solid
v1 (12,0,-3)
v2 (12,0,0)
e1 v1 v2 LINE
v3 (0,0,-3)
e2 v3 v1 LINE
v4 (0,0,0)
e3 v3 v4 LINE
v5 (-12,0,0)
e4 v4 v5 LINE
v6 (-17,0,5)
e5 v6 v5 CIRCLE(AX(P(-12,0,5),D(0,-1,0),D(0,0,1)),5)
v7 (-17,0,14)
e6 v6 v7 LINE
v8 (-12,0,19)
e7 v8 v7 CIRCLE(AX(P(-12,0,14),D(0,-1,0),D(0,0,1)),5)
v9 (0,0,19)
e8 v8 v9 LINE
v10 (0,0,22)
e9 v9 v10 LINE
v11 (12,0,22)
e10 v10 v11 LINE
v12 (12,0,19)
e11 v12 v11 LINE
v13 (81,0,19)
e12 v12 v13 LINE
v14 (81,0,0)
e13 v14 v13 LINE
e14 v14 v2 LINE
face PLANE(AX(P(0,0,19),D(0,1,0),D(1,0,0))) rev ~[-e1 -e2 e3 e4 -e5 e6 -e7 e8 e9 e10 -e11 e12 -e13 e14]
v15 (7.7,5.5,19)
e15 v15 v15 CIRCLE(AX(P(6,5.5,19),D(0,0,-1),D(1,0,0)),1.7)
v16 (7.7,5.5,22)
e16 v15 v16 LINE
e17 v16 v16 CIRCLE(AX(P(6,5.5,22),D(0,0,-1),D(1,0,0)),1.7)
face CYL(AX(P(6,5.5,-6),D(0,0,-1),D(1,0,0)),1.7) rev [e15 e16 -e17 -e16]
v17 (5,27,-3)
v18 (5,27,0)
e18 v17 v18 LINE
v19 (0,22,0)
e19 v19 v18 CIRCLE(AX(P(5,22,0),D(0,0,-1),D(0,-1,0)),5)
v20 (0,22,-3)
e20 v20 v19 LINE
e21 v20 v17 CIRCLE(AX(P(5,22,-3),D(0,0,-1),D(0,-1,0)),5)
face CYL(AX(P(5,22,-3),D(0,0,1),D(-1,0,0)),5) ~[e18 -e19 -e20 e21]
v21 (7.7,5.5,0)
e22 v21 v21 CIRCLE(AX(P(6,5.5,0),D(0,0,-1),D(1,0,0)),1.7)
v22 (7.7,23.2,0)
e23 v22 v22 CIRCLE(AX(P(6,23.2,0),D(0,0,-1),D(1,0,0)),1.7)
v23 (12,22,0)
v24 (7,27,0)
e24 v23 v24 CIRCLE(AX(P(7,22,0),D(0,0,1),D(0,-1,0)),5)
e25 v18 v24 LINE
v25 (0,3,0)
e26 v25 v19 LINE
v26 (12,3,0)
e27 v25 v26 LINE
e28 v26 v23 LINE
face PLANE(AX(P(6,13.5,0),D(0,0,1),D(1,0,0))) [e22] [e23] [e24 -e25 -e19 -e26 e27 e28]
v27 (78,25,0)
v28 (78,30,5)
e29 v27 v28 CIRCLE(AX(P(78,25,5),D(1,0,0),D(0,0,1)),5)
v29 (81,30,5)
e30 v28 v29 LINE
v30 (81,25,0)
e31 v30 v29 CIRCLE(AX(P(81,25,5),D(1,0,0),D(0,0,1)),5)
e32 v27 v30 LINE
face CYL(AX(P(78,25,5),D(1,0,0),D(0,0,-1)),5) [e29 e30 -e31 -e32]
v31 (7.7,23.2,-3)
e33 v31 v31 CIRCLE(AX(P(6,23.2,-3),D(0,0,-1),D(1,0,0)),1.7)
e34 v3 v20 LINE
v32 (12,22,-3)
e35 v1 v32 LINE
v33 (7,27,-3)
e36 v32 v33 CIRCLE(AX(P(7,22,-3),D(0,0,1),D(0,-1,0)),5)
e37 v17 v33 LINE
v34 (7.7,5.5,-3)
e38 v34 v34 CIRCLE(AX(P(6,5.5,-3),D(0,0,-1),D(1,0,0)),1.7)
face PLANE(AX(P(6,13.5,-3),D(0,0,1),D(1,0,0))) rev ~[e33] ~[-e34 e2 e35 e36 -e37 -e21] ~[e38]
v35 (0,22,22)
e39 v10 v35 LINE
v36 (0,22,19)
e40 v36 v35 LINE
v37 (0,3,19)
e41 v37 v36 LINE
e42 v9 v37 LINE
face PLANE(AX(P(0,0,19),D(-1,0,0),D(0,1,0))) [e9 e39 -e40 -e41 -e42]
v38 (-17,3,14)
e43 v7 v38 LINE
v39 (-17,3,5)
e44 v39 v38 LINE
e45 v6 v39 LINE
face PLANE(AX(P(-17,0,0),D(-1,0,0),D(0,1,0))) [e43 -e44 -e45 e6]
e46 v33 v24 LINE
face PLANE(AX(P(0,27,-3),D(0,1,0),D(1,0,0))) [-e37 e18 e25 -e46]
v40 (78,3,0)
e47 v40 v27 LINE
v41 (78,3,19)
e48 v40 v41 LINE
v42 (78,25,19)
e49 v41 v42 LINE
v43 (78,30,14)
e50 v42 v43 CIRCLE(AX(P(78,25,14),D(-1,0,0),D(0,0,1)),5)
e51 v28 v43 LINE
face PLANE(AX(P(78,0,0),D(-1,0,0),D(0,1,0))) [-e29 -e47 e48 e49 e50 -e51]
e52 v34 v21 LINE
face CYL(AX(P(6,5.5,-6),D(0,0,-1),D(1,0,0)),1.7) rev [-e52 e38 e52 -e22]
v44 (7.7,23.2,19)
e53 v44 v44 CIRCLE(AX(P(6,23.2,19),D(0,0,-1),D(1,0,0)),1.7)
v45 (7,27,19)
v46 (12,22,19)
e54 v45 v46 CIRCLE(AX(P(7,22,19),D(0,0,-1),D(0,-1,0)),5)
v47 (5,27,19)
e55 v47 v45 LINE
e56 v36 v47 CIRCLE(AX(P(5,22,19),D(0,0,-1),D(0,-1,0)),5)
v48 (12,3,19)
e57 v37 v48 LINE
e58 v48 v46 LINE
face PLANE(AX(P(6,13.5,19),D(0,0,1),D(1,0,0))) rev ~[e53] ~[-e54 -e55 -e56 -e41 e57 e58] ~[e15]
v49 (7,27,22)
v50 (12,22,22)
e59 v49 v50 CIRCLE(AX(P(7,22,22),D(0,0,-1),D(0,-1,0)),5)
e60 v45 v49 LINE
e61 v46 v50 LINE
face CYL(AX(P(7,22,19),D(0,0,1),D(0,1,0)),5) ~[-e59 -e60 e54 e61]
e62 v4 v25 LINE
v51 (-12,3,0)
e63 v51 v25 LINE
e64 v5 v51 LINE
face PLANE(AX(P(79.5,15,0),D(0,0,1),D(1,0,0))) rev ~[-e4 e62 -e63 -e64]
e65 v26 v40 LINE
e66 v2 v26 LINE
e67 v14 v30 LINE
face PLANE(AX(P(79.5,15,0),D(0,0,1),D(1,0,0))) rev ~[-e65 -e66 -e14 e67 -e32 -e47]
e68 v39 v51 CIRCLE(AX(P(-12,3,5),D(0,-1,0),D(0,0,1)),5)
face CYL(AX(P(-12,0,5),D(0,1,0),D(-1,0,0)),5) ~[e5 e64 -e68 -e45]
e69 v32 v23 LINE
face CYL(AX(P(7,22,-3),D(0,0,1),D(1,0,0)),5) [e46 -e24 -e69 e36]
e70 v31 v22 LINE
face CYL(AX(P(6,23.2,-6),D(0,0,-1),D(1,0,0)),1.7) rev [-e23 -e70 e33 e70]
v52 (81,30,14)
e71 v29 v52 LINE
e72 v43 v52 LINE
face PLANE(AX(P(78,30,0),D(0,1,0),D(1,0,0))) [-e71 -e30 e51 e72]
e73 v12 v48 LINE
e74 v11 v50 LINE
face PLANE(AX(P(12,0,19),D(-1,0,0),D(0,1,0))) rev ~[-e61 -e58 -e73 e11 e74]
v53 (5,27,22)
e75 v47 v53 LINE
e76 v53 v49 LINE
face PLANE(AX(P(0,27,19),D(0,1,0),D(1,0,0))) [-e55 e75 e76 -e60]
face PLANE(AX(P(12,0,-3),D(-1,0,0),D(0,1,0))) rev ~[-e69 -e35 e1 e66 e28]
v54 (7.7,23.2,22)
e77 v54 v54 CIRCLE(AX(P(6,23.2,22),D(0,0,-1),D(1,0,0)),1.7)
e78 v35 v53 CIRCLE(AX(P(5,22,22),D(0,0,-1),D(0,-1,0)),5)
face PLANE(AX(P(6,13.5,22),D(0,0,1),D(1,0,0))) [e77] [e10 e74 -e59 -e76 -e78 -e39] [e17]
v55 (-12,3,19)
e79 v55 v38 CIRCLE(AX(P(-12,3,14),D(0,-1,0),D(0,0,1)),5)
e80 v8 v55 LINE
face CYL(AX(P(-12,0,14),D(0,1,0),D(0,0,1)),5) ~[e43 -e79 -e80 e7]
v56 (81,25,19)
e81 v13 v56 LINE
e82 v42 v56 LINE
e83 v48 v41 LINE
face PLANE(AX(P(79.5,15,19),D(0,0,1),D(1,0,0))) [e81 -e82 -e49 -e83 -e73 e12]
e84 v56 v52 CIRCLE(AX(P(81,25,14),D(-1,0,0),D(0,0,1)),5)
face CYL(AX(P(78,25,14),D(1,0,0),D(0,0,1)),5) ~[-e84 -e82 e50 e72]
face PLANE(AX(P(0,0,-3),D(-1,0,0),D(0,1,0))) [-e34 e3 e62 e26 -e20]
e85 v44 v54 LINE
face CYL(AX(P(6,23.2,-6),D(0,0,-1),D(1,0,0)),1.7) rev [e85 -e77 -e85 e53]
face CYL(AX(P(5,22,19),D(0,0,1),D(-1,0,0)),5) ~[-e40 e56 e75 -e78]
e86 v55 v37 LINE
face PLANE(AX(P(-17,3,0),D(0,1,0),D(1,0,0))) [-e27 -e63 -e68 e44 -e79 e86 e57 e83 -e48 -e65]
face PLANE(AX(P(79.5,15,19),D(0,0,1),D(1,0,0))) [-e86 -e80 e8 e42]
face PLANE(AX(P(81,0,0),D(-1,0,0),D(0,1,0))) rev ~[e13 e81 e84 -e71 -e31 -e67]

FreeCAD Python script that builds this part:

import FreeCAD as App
import Part
import Sketcher
from FreeCAD import Vector


def edges_at(feature, points):
    """Names of the edges that pass closest to the given points."""
    edges = feature.Shape.Edges
    near = lambda p: min(range(len(edges)), key=lambda i: edges[i].distToShape(Part.Vertex(*p))[0])
    return sorted({f"Edge{near(p) + 1}" for p in points})

doc = App.newDocument("Part")
body = doc.addObject("PartDesign::Body", "Body")

# Sketch on XY plane
sketch1 = body.newObject("Sketcher::SketchObject", "Sketch")
sketch1.AttachmentSupport = (doc.getObject("XY_Plane"), [""])
sketch1.MapMode = "FlatFace"
sketch1.AttachmentOffset = App.Placement(Vector(0, 0, -6), App.Rotation())
sketch1.addGeometry(Part.Circle(Vector(6, 23.2, 0), Vector(0, 0, 1), 1.7), False)
sketch1.addConstraint(Sketcher.Constraint("Diameter", 0, 3.4))
sketch1.addConstraint(Sketcher.Constraint("DistanceX", -1, 1, 0, 3, 6.0))
sketch1.addConstraint(Sketcher.Constraint("DistanceY", -1, 1, 0, 3, 23.2))
pad1 = body.newObject("PartDesign::Pad", "Pad")
pad1.Profile = sketch1
pad1.Length = 31
body2 = doc.addObject("PartDesign::Body", "Body001")
body2.AllowCompound = True

# Sketch on XY plane
sketch2 = body2.newObject("Sketcher::SketchObject", "Sketch001")
sketch2.AttachmentSupport = (doc.getObject("XY_Plane001"), [""])
sketch2.MapMode = "FlatFace"
sketch2.AttachmentOffset = App.Placement(Vector(0, 0, -6), App.Rotation())
sketch2.addGeometry(Part.Circle(Vector(6, 5.5, 0), Vector(0, 0, 1), 1.7), False)
sketch2.addConstraint(Sketcher.Constraint("Diameter", 0, 3.4))
sketch2.addConstraint(Sketcher.Constraint("DistanceX", -1, 1, 0, 3, 6.0))
sketch2.addConstraint(Sketcher.Constraint("DistanceY", -1, 1, 0, 3, 5.5))
pad2 = body2.newObject("PartDesign::Pad", "Pad001")
pad2.Profile = sketch2
pad2.Length = 31
doc.recompute()

boolean = body2.newObject("PartDesign::Boolean", "Boolean")
boolean.Type = "Fuse"
boolean.addObjects([body])
body3 = doc.addObject("PartDesign::Body", "Body002")

# Sketch on XY plane
sketch3 = body3.newObject("Sketcher::SketchObject", "Sketch002")
sketch3.AttachmentSupport = (doc.getObject("XY_Plane002"), [""])
sketch3.MapMode = "FlatFace"
sketch3.addGeometry(Part.LineSegment(Vector(78, 30, 0), Vector(78, 0, 0)), False)
sketch3.addGeometry(Part.LineSegment(Vector(78, 0, 0), Vector(81, 0, 0)), False)
sketch3.addGeometry(Part.LineSegment(Vector(81, 0, 0), Vector(81, 30, 0)), False)
sketch3.addGeometry(Part.LineSegment(Vector(81, 30, 0), Vector(78, 30, 0)), False)
sketch3.addConstraint(Sketcher.Constraint("Coincident", 0, 2, 1, 1))
sketch3.addConstraint(Sketcher.Constraint("Coincident", 1, 2, 2, 1))
sketch3.addConstraint(Sketcher.Constraint("Coincident", 2, 2, 3, 1))
sketch3.addConstraint(Sketcher.Constraint("Coincident", 3, 2, 0, 1))
sketch3.addConstraint(Sketcher.Constraint("Vertical", 0))
sketch3.addConstraint(Sketcher.Constraint("Horizontal", 1))
sketch3.addConstraint(Sketcher.Constraint("Vertical", 2))
sketch3.addConstraint(Sketcher.Constraint("Horizontal", 3))
sketch3.addConstraint(Sketcher.Constraint("PointOnObject", 0, 2, -1))
sketch3.addConstraint(Sketcher.Constraint("DistanceX", 1, 1, 1, 2, 3.0))
sketch3.addConstraint(Sketcher.Constraint("DistanceY", 0, 2, 0, 1, 30.0))
sketch3.addConstraint(Sketcher.Constraint("DistanceX", -1, 1, 0, 2, 78.0))
pad3 = body3.newObject("PartDesign::Pad", "Pad002")
pad3.Profile = sketch3
pad3.Length = 19
body4 = doc.addObject("PartDesign::Body", "Body003")

# Sketch on XY plane
sketch4 = body4.newObject("Sketcher::SketchObject", "Sketch003")
sketch4.AttachmentSupport = (doc.getObject("XY_Plane003"), [""])
sketch4.MapMode = "FlatFace"
sketch4.AttachmentOffset = App.Placement(Vector(0, 0, -3), App.Rotation())
sketch4.addGeometry(Part.LineSegment(Vector(0, 27, 0), Vector(0, 0, 0)), False)
sketch4.addGeometry(Part.LineSegment(Vector(0, 0, 0), Vector(12, 0, 0)), False)
sketch4.addGeometry(Part.LineSegment(Vector(12, 0, 0), Vector(12, 27, 0)), False)
sketch4.addGeometry(Part.LineSegment(Vector(12, 27, 0), Vector(0, 27, 0)), False)
sketch4.addConstraint(Sketcher.Constraint("Coincident", 0, 2, 1, 1))
sketch4.addConstraint(Sketcher.Constraint("Coincident", 1, 2, 2, 1))
sketch4.addConstraint(Sketcher.Constraint("Coincident", 2, 2, 3, 1))
sketch4.addConstraint(Sketcher.Constraint("Coincident", 3, 2, 0, 1))
sketch4.addConstraint(Sketcher.Constraint("Vertical", 0))
sketch4.addConstraint(Sketcher.Constraint("Horizontal", 1))
sketch4.addConstraint(Sketcher.Constraint("Vertical", 2))
sketch4.addConstraint(Sketcher.Constraint("Horizontal", 3))
sketch4.addConstraint(Sketcher.Constraint("Coincident", 0, 2, -1, 1))
sketch4.addConstraint(Sketcher.Constraint("DistanceX", 1, 1, 1, 2, 12.0))
sketch4.addConstraint(Sketcher.Constraint("DistanceY", 0, 2, 0, 1, 27.0))
pad4 = body4.newObject("PartDesign::Pad", "Pad003")
pad4.Profile = sketch4
pad4.Length = 3
body5 = doc.addObject("PartDesign::Body", "Body004")

# Sketch on XY plane
sketch5 = body5.newObject("Sketcher::SketchObject", "Sketch004")
sketch5.AttachmentSupport = (doc.getObject("XY_Plane004"), [""])
sketch5.MapMode = "FlatFace"
sketch5.AttachmentOffset = App.Placement(Vector(0, 0, 19), App.Rotation())
sketch5.addGeometry(Part.LineSegment(Vector(0, 27, 0), Vector(0, 0, 0)), False)
sketch5.addGeometry(Part.LineSegment(Vector(0, 0, 0), Vector(12, 0, 0)), False)
sketch5.addGeometry(Part.LineSegment(Vector(12, 0, 0), Vector(12, 27, 0)), False)
sketch5.addGeometry(Part.LineSegment(Vector(12, 27, 0), Vector(0, 27, 0)), False)
sketch5.addConstraint(Sketcher.Constraint("Coincident", 0, 2, 1, 1))
sketch5.addConstraint(Sketcher.Constraint("Coincident", 1, 2, 2, 1))
sketch5.addConstraint(Sketcher.Constraint("Coincident", 2, 2, 3, 1))
sketch5.addConstraint(Sketcher.Constraint("Coincident", 3, 2, 0, 1))
sketch5.addConstraint(Sketcher.Constraint("Vertical", 0))
sketch5.addConstraint(Sketcher.Constraint("Horizontal", 1))
sketch5.addConstraint(Sketcher.Constraint("Vertical", 2))
sketch5.addConstraint(Sketcher.Constraint("Horizontal", 3))
sketch5.addConstraint(Sketcher.Constraint("Coincident", 0, 2, -1, 1))
sketch5.addConstraint(Sketcher.Constraint("DistanceX", 1, 1, 1, 2, 12.0))
sketch5.addConstraint(Sketcher.Constraint("DistanceY", 0, 2, 0, 1, 27.0))
pad5 = body5.newObject("PartDesign::Pad", "Pad004")
pad5.Profile = sketch5
pad5.Length = 3
body6 = doc.addObject("PartDesign::Body", "Body005")

# Sketch on XY plane
sketch6 = body6.newObject("Sketcher::SketchObject", "Sketch005")
sketch6.AttachmentSupport = (doc.getObject("XY_Plane005"), [""])
sketch6.MapMode = "FlatFace"
sketch6.addGeometry(Part.LineSegment(Vector(-17, 3, 0), Vector(-17, 0, 0)), False)
sketch6.addGeometry(Part.LineSegment(Vector(-17, 0, 0), Vector(78, 0, 0)), False)
sketch6.addGeometry(Part.LineSegment(Vector(78, 0, 0), Vector(78, 3, 0)), False)
sketch6.addGeometry(Part.LineSegment(Vector(78, 3, 0), Vector(-17, 3, 0)), False)
sketch6.addConstraint(Sketcher.Constraint("Coincident", 0, 2, 1, 1))
sketch6.addConstraint(Sketcher.Constraint("Coincident", 1, 2, 2, 1))
sketch6.addConstraint(Sketcher.Constraint("Coincident", 2, 2, 3, 1))
sketch6.addConstraint(Sketcher.Constraint("Coincident", 3, 2, 0, 1))
sketch6.addConstraint(Sketcher.Constraint("Vertical", 0))
sketch6.addConstraint(Sketcher.Constraint("Horizontal", 1))
sketch6.addConstraint(Sketcher.Constraint("Vertical", 2))
sketch6.addConstraint(Sketcher.Constraint("Horizontal", 3))
sketch6.addConstraint(Sketcher.Constraint("PointOnObject", 0, 2, -1))
sketch6.addConstraint(Sketcher.Constraint("DistanceX", 1, 1, 1, 2, 95.0))
sketch6.addConstraint(Sketcher.Constraint("DistanceY", 0, 2, 0, 1, 3.0))
sketch6.addConstraint(Sketcher.Constraint("DistanceX", 0, 2, -1, 1, 17.0))
pad6 = body6.newObject("PartDesign::Pad", "Pad005")
pad6.Profile = sketch6
pad6.Length = 19
doc.recompute()

boolean2 = body6.newObject("PartDesign::Boolean", "Boolean001")
boolean2.Type = "Fuse"
boolean2.addObjects([body3])
doc.recompute()

boolean3 = body6.newObject("PartDesign::Boolean", "Boolean002")
boolean3.Type = "Fuse"
boolean3.addObjects([body4])
doc.recompute()

boolean4 = body6.newObject("PartDesign::Boolean", "Boolean003")
boolean4.Type = "Fuse"
boolean4.addObjects([body5])
doc.recompute()

fillet = body6.newObject("PartDesign::Fillet", "Fillet")
fillet.Base = (boolean4, edges_at(boolean4, [
    (79.5, 30, 0),
    (79.5, 30, 19),
    (0, 27, 20.5),
    (12, 27, 20.5),
    (-17, 1.5, 19),
    (-17, 1.5, 0),
    (0, 27, -1.5),
    (12, 27, -1.5),
]))
fillet.Radius = 5
doc.recompute()

boolean5 = body6.newObject("PartDesign::Boolean", "Boolean004")
boolean5.Type = "Cut"
boolean5.addObjects([body2])

doc.recompute()
